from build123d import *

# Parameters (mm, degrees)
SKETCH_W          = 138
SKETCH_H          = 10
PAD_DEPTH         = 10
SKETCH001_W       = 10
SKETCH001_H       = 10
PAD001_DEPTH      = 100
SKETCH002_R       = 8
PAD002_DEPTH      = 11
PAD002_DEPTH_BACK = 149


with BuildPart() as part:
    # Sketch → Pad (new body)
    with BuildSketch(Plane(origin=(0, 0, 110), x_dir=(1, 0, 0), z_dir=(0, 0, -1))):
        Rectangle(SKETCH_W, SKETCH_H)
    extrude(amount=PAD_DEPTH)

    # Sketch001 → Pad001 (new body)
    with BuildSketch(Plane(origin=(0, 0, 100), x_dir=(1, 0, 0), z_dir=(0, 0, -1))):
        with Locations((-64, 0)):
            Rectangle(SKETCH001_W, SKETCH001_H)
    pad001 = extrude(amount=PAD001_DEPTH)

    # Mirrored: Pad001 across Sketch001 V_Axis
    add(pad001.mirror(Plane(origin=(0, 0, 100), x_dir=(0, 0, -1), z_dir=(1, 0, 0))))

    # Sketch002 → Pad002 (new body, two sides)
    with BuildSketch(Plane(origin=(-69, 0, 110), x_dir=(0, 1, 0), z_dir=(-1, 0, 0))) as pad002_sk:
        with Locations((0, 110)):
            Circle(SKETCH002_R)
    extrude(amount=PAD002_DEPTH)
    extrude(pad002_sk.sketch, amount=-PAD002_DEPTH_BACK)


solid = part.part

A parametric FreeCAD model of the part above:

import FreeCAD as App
import Part
import Sketcher
from FreeCAD import Vector


def add_polygon(sketch, points):
    """Adds a closed chain of lines whose ends are joined by coincident constraints."""
    first, n = sketch.GeometryCount, len(points)
    for a, b in zip(points, points[1:] + points[:1]):
        sketch.addGeometry(Part.LineSegment(App.Vector(*a, 0), App.Vector(*b, 0)), False)
    for i in range(n):
        sketch.addConstraint(Sketcher.Constraint("Coincident", first + i, 2, first + (i + 1) % n, 1))

doc = App.newDocument("Part")
body = doc.addObject("PartDesign::Body", "Body")

# Sketch on XY plane
sketch1 = body.newObject("Sketcher::SketchObject", "Sketch")
sketch1.AttachmentSupport = (doc.getObject("XY_Plane"), [""])
sketch1.MapMode = "FlatFace"
sketch1.AttachmentOffset = App.Placement(Vector(0, 0, 110), App.Rotation())
add_polygon(sketch1, [(-69, -5), (-69, 5), (69, 5), (69, -5)])  # lines 0-3
sketch1.addConstraint(Sketcher.Constraint("Vertical", 0))
sketch1.addConstraint(Sketcher.Constraint("Horizontal", 1))
sketch1.addConstraint(Sketcher.Constraint("Vertical", 2))
sketch1.addConstraint(Sketcher.Constraint("Horizontal", 3))
sketch1.addConstraint(Sketcher.Constraint("Symmetric", 0, 2, 2, 2, -1, 1))
sketch1.addConstraint(Sketcher.Constraint("DistanceX", 1, 1, 1, 2, 138.0))
sketch1.addConstraint(Sketcher.Constraint("DistanceY", 0, 1, 0, 2, 10.0))
pad1 = body.newObject("PartDesign::Pad", "Pad")
pad1.Profile = sketch1
pad1.Length = 10
pad1.Reversed = True

# Sketch on XY plane
sketch2 = body.newObject("Sketcher::SketchObject", "Sketch001")
sketch2.AttachmentSupport = (doc.getObject("XY_Plane"), [""])
sketch2.MapMode = "FlatFace"
sketch2.AttachmentOffset = App.Placement(Vector(0, 0, 100), App.Rotation())
add_polygon(sketch2, [(-69, -5), (-69, 5), (-59, 5), (-59, -5)])  # lines 0-3
sketch2.addConstraint(Sketcher.Constraint("Vertical", 0))
sketch2.addConstraint(Sketcher.Constraint("Horizontal", 1))
sketch2.addConstraint(Sketcher.Constraint("Vertical", 2))
sketch2.addConstraint(Sketcher.Constraint("Horizontal", 3))
sketch2.addConstraint(Sketcher.Constraint("Equal", 3, 0))
sketch2.addConstraint(Sketcher.Constraint("DistanceX", 1, 1, 1, 2, 10.0))
sketch2.addConstraint(Sketcher.Constraint("DistanceX", 0, 2, -1, 1, 69.0))
sketch2.addConstraint(Sketcher.Constraint("DistanceY", -1, 1, 0, 2, 5.0))
pad2 = body.newObject("PartDesign::Pad", "Pad001")
pad2.Profile = sketch2
pad2.Length = 100
pad2.Reversed = True
doc.recompute()

mirrored = body.newObject("PartDesign::Mirrored", "Mirrored")
mirrored.Originals = [pad2]
mirrored.MirrorPlane = (doc.getObject("YZ_Plane"), [""])
body.Tip = mirrored

# Sketch on YZ plane
sketch3 = body.newObject("Sketcher::SketchObject", "Sketch002")
sketch3.AttachmentSupport = (doc.getObject("YZ_Plane"), [""])
sketch3.MapMode = "FlatFace"
sketch3.AttachmentOffset = App.Placement(Vector(0, 0, -69), App.Rotation())
sketch3.addGeometry(Part.Circle(Vector(0, 0, 0), Vector(0, 0, 1), 8), False)
sketch3.addConstraint(Sketcher.Constraint("Coincident", 0, 3, -1, 1))
sketch3.addConstraint(Sketcher.Constraint("Diameter", 0, 16.0))
pad3 = body.newObject("PartDesign::Pad", "Pad002")
pad3.Profile = sketch3
pad3.Type = "TwoLengths"
pad3.Length = 11
pad3.Length2 = 149
pad3.Reversed = True

doc.recompute()
